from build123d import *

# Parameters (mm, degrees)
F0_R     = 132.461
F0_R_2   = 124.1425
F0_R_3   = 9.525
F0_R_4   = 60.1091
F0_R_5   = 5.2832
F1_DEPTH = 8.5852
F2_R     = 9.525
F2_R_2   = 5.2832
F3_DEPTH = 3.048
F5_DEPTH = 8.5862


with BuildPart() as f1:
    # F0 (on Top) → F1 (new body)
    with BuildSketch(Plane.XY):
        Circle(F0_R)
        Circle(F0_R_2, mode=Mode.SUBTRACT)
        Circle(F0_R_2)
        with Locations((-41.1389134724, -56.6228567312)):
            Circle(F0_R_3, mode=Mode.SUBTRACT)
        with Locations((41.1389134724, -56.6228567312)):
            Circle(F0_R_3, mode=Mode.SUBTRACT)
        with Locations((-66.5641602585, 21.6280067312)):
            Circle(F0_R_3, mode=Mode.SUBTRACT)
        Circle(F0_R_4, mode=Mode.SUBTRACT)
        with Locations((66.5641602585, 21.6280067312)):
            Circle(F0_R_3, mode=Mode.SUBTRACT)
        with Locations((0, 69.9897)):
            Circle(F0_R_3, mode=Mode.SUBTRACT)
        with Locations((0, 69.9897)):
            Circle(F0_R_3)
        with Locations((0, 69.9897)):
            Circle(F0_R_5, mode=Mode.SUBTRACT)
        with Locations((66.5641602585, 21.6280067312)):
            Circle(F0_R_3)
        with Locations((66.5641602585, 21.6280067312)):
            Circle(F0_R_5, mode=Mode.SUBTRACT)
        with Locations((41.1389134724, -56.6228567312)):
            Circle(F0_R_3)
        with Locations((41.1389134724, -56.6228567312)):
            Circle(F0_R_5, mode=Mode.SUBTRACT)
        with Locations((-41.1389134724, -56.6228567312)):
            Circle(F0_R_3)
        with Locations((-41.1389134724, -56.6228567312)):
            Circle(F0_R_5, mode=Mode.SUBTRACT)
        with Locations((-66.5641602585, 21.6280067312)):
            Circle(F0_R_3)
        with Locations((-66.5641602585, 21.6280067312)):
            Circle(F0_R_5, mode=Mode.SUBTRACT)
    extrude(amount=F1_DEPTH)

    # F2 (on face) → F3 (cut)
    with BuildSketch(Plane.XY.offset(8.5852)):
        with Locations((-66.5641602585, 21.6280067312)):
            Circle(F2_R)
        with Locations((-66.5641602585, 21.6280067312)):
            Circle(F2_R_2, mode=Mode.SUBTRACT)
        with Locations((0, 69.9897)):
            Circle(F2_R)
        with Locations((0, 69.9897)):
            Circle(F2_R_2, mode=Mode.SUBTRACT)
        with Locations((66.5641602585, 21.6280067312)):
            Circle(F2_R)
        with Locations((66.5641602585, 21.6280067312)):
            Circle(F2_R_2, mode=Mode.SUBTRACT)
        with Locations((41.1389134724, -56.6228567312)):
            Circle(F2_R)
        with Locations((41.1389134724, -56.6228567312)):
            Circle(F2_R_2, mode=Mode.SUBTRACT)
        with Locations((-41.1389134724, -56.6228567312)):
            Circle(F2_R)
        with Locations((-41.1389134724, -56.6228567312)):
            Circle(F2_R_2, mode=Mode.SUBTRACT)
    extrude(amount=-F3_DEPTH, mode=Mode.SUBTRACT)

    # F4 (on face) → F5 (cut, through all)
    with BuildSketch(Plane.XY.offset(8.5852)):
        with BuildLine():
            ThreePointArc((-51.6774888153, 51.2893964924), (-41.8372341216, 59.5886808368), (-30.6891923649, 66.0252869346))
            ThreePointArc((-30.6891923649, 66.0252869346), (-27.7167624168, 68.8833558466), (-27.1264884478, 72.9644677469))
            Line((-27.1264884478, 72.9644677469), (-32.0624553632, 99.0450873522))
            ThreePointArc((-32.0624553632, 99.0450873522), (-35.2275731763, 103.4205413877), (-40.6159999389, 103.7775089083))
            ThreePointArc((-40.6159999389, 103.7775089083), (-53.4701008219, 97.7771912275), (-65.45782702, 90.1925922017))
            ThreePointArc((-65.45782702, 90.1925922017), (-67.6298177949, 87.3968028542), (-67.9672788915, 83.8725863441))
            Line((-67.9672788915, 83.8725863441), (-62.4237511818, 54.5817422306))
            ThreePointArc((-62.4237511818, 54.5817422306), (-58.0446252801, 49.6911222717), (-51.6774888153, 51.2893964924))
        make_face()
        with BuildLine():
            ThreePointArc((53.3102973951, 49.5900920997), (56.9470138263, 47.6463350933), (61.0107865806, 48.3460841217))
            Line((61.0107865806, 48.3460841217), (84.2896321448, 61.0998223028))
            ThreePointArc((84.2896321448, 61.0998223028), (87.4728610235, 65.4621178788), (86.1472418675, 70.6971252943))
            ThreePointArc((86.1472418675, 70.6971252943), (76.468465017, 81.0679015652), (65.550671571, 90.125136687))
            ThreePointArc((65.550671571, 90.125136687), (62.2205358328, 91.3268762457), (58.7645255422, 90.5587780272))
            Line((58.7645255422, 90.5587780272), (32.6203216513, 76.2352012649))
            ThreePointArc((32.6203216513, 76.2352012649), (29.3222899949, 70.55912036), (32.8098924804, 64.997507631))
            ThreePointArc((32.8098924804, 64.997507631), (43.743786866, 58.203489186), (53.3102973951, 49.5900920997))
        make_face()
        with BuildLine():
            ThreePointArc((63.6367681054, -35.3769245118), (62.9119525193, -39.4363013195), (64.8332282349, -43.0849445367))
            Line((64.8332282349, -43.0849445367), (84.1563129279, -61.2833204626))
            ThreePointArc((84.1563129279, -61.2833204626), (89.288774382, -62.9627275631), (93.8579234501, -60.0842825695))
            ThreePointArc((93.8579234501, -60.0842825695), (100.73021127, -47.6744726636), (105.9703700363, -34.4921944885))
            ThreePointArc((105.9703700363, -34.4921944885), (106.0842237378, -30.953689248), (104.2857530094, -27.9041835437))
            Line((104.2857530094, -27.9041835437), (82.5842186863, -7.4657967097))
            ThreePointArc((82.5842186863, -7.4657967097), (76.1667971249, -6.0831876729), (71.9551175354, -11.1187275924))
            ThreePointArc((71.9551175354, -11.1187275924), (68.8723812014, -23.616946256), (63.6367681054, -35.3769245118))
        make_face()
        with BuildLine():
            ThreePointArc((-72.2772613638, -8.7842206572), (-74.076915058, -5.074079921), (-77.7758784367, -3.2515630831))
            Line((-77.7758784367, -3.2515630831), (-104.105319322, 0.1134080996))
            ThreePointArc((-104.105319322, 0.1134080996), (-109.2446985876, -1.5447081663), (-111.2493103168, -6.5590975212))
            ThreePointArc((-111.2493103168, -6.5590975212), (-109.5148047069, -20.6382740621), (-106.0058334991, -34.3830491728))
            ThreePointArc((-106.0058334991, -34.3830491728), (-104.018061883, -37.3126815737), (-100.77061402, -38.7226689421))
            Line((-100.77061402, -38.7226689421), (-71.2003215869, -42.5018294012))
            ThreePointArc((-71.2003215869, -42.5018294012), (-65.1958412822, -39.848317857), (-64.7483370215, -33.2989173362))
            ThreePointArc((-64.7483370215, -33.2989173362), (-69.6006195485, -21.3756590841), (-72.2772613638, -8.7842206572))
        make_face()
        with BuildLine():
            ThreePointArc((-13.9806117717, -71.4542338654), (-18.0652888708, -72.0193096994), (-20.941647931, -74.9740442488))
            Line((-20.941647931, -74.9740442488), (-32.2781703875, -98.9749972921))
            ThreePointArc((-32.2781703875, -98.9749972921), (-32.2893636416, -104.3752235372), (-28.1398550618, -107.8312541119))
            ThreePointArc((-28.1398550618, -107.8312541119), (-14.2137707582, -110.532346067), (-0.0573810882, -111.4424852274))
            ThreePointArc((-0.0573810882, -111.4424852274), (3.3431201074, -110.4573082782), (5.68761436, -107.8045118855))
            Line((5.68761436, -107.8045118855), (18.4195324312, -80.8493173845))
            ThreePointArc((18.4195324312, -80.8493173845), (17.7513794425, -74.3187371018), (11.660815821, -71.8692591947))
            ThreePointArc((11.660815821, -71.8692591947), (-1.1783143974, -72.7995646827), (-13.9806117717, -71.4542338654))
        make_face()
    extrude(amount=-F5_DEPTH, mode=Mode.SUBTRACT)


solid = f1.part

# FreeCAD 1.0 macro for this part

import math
import FreeCAD as App
import Part
import Sketcher
from FreeCAD import Vector
Q = App.Units.Quantity

doc = App.newDocument("Part")
body = doc.addObject("PartDesign::Body", "Body")

sketch1 = body.newObject("Sketcher::SketchObject", "Sketch")
sketch1.AttachmentSupport = (doc.getObject("XY_Plane"), [""])
sketch1.MapMode = "FlatFace"
sketch1.addGeometry(Part.Circle(Vector(0, 0, 0), Vector(0, 0, 1), 132), False)
sketch1.addGeometry(Part.Circle(Vector(-41, -57, 0), Vector(0, 0, 1), 5), False)
sketch1.addGeometry(Part.Circle(Vector(41, -57, 0), Vector(0, 0, 1), 5), False)
sketch1.addGeometry(Part.Circle(Vector(0, 0, 0), Vector(0, 0, 1), 60), False)
sketch1.addGeometry(Part.Circle(Vector(-67, 22, 0), Vector(0, 0, 1), 5), False)
sketch1.addGeometry(Part.Circle(Vector(67, 22, 0), Vector(0, 0, 1), 5), False)
sketch1.addGeometry(Part.Circle(Vector(0, 70, 0), Vector(0, 0, 1), 5), False)
sketch1.addConstraint(Sketcher.Constraint("Coincident", 0, 3, -1, 1))
sketch1.addConstraint(Sketcher.Constraint("Coincident", 3, 3, -1, 1))
sketch1.addConstraint(Sketcher.Constraint("Equal", 1, 2))
sketch1.addConstraint(Sketcher.Constraint("Equal", 2, 4))
sketch1.addConstraint(Sketcher.Constraint("Equal", 4, 5))
sketch1.addConstraint(Sketcher.Constraint("Equal", 5, 6))
sketch1.addConstraint(Sketcher.Constraint("Symmetric", 1, 3, 2, 3, -2))
sketch1.addConstraint(Sketcher.Constraint("Symmetric", 4, 3, 5, 3, -2))
sketch1.addConstraint(Sketcher.Constraint("PointOnObject", 6, 3, -2))
sketch1.addConstraint(Sketcher.Constraint("Diameter", 0, Q("10.43 in")))
sketch1.addConstraint(Sketcher.Constraint("Diameter", 1, Q("0.416 in")))
sketch1.addConstraint(Sketcher.Constraint("Diameter", 3, Q("4.733 in")))
sketch1.addConstraint(Sketcher.Constraint("DistanceY", -1, 1, 6, 3, Q("2.7555 in")))
sketch1.addConstraint(Sketcher.Constraint("DistanceX", 4, 3, -1, 1, Q("66.56416 mm")))
sketch1.addConstraint(Sketcher.Constraint("DistanceX", 1, 3, -1, 1, Q("41.138913 mm")))
sketch1.addConstraint(Sketcher.Constraint("DistanceY", 1, 3, -1, 1, Q("56.622857 mm")))
sketch1.addConstraint(Sketcher.Constraint("DistanceY", -1, 1, 4, 3, Q("21.628007 mm")))
pad1 = body.newObject("PartDesign::Pad", "Pad")
pad1.Profile = sketch1
pad1.Length = Q("0.338 in")

sketch2 = body.newObject("Sketcher::SketchObject", "Sketch001")
sketch2.AttachmentSupport = (doc.getObject("XY_Plane"), [""])
sketch2.MapMode = "FlatFace"
sketch2.AttachmentOffset = App.Placement(Vector(0, 0, 0.338 * 25.4), App.Rotation())
sketch2.addGeometry(Part.Circle(Vector(-67, 22, 0), Vector(0, 0, 1), 10), False)
sketch2.addGeometry(Part.Circle(Vector(-67, 22, 0), Vector(0, 0, 1), 5), False)
sketch2.addGeometry(Part.Circle(Vector(0, 70, 0), Vector(0, 0, 1), 10), False)
sketch2.addGeometry(Part.Circle(Vector(0, 70, 0), Vector(0, 0, 1), 5), False)
sketch2.addGeometry(Part.Circle(Vector(67, 22, 0), Vector(0, 0, 1), 10), False)
sketch2.addGeometry(Part.Circle(Vector(67, 22, 0), Vector(0, 0, 1), 5), False)
sketch2.addGeometry(Part.Circle(Vector(41, -57, 0), Vector(0, 0, 1), 10), False)
sketch2.addGeometry(Part.Circle(Vector(41, -57, 0), Vector(0, 0, 1), 5), False)
sketch2.addGeometry(Part.Circle(Vector(-41, -57, 0), Vector(0, 0, 1), 10), False)
sketch2.addGeometry(Part.Circle(Vector(-41, -57, 0), Vector(0, 0, 1), 5), False)
sketch2.addConstraint(Sketcher.Constraint("Coincident", 1, 3, 0, 3))
sketch2.addConstraint(Sketcher.Constraint("Coincident", 3, 3, 2, 3))
sketch2.addConstraint(Sketcher.Constraint("Coincident", 5, 3, 4, 3))
sketch2.addConstraint(Sketcher.Constraint("Coincident", 7, 3, 6, 3))
sketch2.addConstraint(Sketcher.Constraint("Coincident", 9, 3, 8, 3))
sketch2.addConstraint(Sketcher.Constraint("Equal", 0, 2))
sketch2.addConstraint(Sketcher.Constraint("Equal", 1, 3))
sketch2.addConstraint(Sketcher.Constraint("Equal", 2, 4))
sketch2.addConstraint(Sketcher.Constraint("Equal", 3, 5))
sketch2.addConstraint(Sketcher.Constraint("Equal", 4, 6))
sketch2.addConstraint(Sketcher.Constraint("Equal", 5, 7))
sketch2.addConstraint(Sketcher.Constraint("Equal", 6, 8))
sketch2.addConstraint(Sketcher.Constraint("Equal", 7, 9))
sketch2.addConstraint(Sketcher.Constraint("Symmetric", 0, 3, 4, 3, -2))
sketch2.addConstraint(Sketcher.Constraint("Symmetric", 6, 3, 8, 3, -2))
sketch2.addConstraint(Sketcher.Constraint("PointOnObject", 2, 3, -2))
sketch2.addConstraint(Sketcher.Constraint("Diameter", 0, Q("0.75 in")))
sketch2.addConstraint(Sketcher.Constraint("Diameter", 1, Q("0.416 in")))
sketch2.addConstraint(Sketcher.Constraint("DistanceY", -1, 1, 2, 3, Q("2.7555 in")))
sketch2.addConstraint(Sketcher.Constraint("DistanceX", 0, 3, -1, 1, Q("66.56416 mm")))
sketch2.addConstraint(Sketcher.Constraint("DistanceY", -1, 1, 0, 3, Q("21.628007 mm")))
sketch2.addConstraint(Sketcher.Constraint("DistanceX", -1, 1, 6, 3, Q("41.138913 mm")))
sketch2.addConstraint(Sketcher.Constraint("DistanceY", 6, 3, -1, 1, Q("56.622857 mm")))
pocket1 = body.newObject("PartDesign::Pocket", "Pocket")
pocket1.Profile = sketch2
pocket1.Length = Q("0.12 in")

sketch3 = body.newObject("Sketcher::SketchObject", "Sketch002")
sketch3.AttachmentSupport = (doc.getObject("XY_Plane"), [""])
sketch3.MapMode = "FlatFace"
sketch3.AttachmentOffset = App.Placement(Vector(0, 0, 0.338 * 25.4), App.Rotation())
sketch3.addGeometry(Part.ArcOfCircle(Part.Circle(Vector(0, 0, 0), Vector(0, 0, 1), 73), math.radians(115), math.radians(135)), False)
sketch3.addGeometry(Part.ArcOfCircle(Part.Circle(Vector(-33, 72, 0), Vector(0, 0, 1), 6), math.radians(-65), math.radians(11)), False)
sketch3.addGeometry(Part.LineSegment(Vector(-27, 73, 0), Vector(-32, 99, 0)), False)
sketch3.addGeometry(Part.ArcOfCircle(Part.Circle(Vector(-38, 98, 0), Vector(0, 0, 1), 6), math.radians(11), math.radians(111)), False)
sketch3.addGeometry(Part.ArcOfCircle(Part.Circle(Vector(0, 0, 0), Vector(0, 0, 1), 111), math.radians(111.37), math.radians(125.97)), False)
sketch3.addGeometry(Part.ArcOfCircle(Part.Circle(Vector(-62, 85, 0), Vector(0, 0, 1), 6), math.radians(126), math.radians(191)), False)
sketch3.addGeometry(Part.LineSegment(Vector(-68, 84, 0), Vector(-62, 55, 0)), False)
sketch3.addGeometry(Part.ArcOfCircle(Part.Circle(Vector(-56, 56, 0), Vector(0, 0, 1), 6), math.radians(-169), math.radians(-45)), False)
sketch3.addGeometry(Part.ArcOfCircle(Part.Circle(Vector(58, 54, 0), Vector(0, 0, 1), 6), math.radians(-137), math.radians(-61)), False)
sketch3.addGeometry(Part.LineSegment(Vector(61, 48, 0), Vector(84, 61, 0)), False)
sketch3.addGeometry(Part.ArcOfCircle(Part.Circle(Vector(81, 67, 0), Vector(0, 0, 1), 6), math.radians(-61), math.radians(39)), False)
sketch3.addGeometry(Part.ArcOfCircle(Part.Circle(Vector(0, 0, 0), Vector(0, 0, 1), 111), math.radians(39.37), math.radians(53.97)), False)
sketch3.addGeometry(Part.ArcOfCircle(Part.Circle(Vector(62, 85, 0), Vector(0, 0, 1), 6), math.radians(54), math.radians(119)), False)
sketch3.addGeometry(Part.LineSegment(Vector(59, 91, 0), Vector(33, 76, 0)), False)
sketch3.addGeometry(Part.ArcOfCircle(Part.Circle(Vector(36, 71, 0), Vector(0, 0, 1), 6), math.radians(119), math.radians(243)), False)
sketch3.addGeometry(Part.ArcOfCircle(Part.Circle(Vector(0, 0, 0), Vector(0, 0, 1), 73), math.radians(43), math.radians(63)), False)
sketch3.addGeometry(Part.ArcOfCircle(Part.Circle(Vector(69, -38, 0), Vector(0, 0, 1), 6), math.radians(151), math.radians(227)), False)
sketch3.addGeometry(Part.LineSegment(Vector(65, -43, 0), Vector(84, -61, 0)), False)
sketch3.addGeometry(Part.ArcOfCircle(Part.Circle(Vector(89, -57, 0), Vector(0, 0, 1), 6), math.radians(-133), math.radians(-33)), False)
sketch3.addGeometry(Part.ArcOfCircle(Part.Circle(Vector(0, 0, 0), Vector(0, 0, 1), 111), math.radians(-32.63), math.radians(-18.03)), False)
sketch3.addGeometry(Part.ArcOfCircle(Part.Circle(Vector(100, -33, 0), Vector(0, 0, 1), 6), math.radians(-18), math.radians(47)), False)
sketch3.addGeometry(Part.LineSegment(Vector(104, -28, 0), Vector(83, -7, 0)), False)
sketch3.addGeometry(Part.ArcOfCircle(Part.Circle(Vector(78, -12, 0), Vector(0, 0, 1), 6), math.radians(47), math.radians(171)), False)
sketch3.addGeometry(Part.ArcOfCircle(Part.Circle(Vector(0, 0, 0), Vector(0, 0, 1), 73), math.radians(-29), math.radians(-9)), False)
sketch3.addGeometry(Part.ArcOfCircle(Part.Circle(Vector(-79, -10, 0), Vector(0, 0, 1), 6), math.radians(7), math.radians(83)), False)
sketch3.addGeometry(Part.LineSegment(Vector(-78, -3, 0), Vector(-104, 0, 0)), False)
sketch3.addGeometry(Part.ArcOfCircle(Part.Circle(Vector(-105, -6, 0), Vector(0, 0, 1), 6), math.radians(83), math.radians(183)), False)
sketch3.addGeometry(Part.ArcOfCircle(Part.Circle(Vector(0, 0, 0), Vector(0, 0, 1), 111), math.radians(-176.63), math.radians(-162.03)), False)
sketch3.addGeometry(Part.ArcOfCircle(Part.Circle(Vector(-100, -32, 0), Vector(0, 0, 1), 6), math.radians(-162), math.radians(-97)), False)
sketch3.addGeometry(Part.LineSegment(Vector(-101, -39, 0), Vector(-71, -43, 0)), False)
sketch3.addGeometry(Part.ArcOfCircle(Part.Circle(Vector(-70, -36, 0), Vector(0, 0, 1), 6), math.radians(-97), math.radians(27)), False)
sketch3.addGeometry(Part.ArcOfCircle(Part.Circle(Vector(0, 0, 0), Vector(0, 0, 1), 73), math.radians(-173), math.radians(-153)), False)
sketch3.addGeometry(Part.ArcOfCircle(Part.Circle(Vector(-15, -78, 0), Vector(0, 0, 1), 6), math.radians(79), math.radians(155)), False)
sketch3.addGeometry(Part.LineSegment(Vector(-21, -75, 0), Vector(-32, -99, 0)), False)
sketch3.addGeometry(Part.ArcOfCircle(Part.Circle(Vector(-27, -102, 0), Vector(0, 0, 1), 6), math.radians(155), math.radians(255)), False)
sketch3.addGeometry(Part.ArcOfCircle(Part.Circle(Vector(0, 0, 0), Vector(0, 0, 1), 111), math.radians(-104.63), math.radians(-90.03)), False)
sketch3.addGeometry(Part.ArcOfCircle(Part.Circle(Vector(0, -105, 0), Vector(0, 0, 1), 6), math.radians(-90), math.radians(-25)), False)
sketch3.addGeometry(Part.LineSegment(Vector(6, -108, 0), Vector(18, -81, 0)), False)
sketch3.addGeometry(Part.ArcOfCircle(Part.Circle(Vector(13, -78, 0), Vector(0, 0, 1), 6), math.radians(-25), math.radians(99)), False)
sketch3.addGeometry(Part.ArcOfCircle(Part.Circle(Vector(0, 0, 0), Vector(0, 0, 1), 73), math.radians(-101), math.radians(-81)), False)
sketch3.addConstraint(Sketcher.Constraint("Tangent", 0, 1, 1, 1))
sketch3.addConstraint(Sketcher.Constraint("Tangent", 1, 2, 2, 1))
sketch3.addConstraint(Sketcher.Constraint("Tangent", 2, 2, 3, 1))
sketch3.addConstraint(Sketcher.Constraint("Tangent", 3, 2, 4, 1))
sketch3.addConstraint(Sketcher.Constraint("Tangent", 4, 2, 5, 1))
sketch3.addConstraint(Sketcher.Constraint("Tangent", 5, 2, 6, 1))
sketch3.addConstraint(Sketcher.Constraint("Tangent", 6, 2, 7, 1))
sketch3.addConstraint(Sketcher.Constraint("Tangent", 7, 2, 0, 2))
sketch3.addConstraint(Sketcher.Constraint("Tangent", 8, 2, 9, 1))
sketch3.addConstraint(Sketcher.Constraint("Tangent", 9, 2, 10, 1))
sketch3.addConstraint(Sketcher.Constraint("Tangent", 10, 2, 11, 1))
sketch3.addConstraint(Sketcher.Constraint("Tangent", 11, 2, 12, 1))
sketch3.addConstraint(Sketcher.Constraint("Tangent", 12, 2, 13, 1))
sketch3.addConstraint(Sketcher.Constraint("Tangent", 13, 2, 14, 1))
sketch3.addConstraint(Sketcher.Constraint("Tangent", 14, 2, 15, 2))
sketch3.addConstraint(Sketcher.Constraint("Tangent", 15, 1, 8, 1))
sketch3.addConstraint(Sketcher.Constraint("Tangent", 16, 2, 17, 1))
sketch3.addConstraint(Sketcher.Constraint("Tangent", 17, 2, 18, 1))
sketch3.addConstraint(Sketcher.Constraint("Tangent", 18, 2, 19, 1))
sketch3.addConstraint(Sketcher.Constraint("Tangent", 19, 2, 20, 1))
sketch3.addConstraint(Sketcher.Constraint("Tangent", 20, 2, 21, 1))
sketch3.addConstraint(Sketcher.Constraint("Tangent", 21, 2, 22, 1))
sketch3.addConstraint(Sketcher.Constraint("Tangent", 22, 2, 23, 2))
sketch3.addConstraint(Sketcher.Constraint("Tangent", 23, 1, 16, 1))
sketch3.addConstraint(Sketcher.Constraint("Tangent", 24, 2, 25, 1))
sketch3.addConstraint(Sketcher.Constraint("Tangent", 25, 2, 26, 1))
sketch3.addConstraint(Sketcher.Constraint("Tangent", 26, 2, 27, 1))
sketch3.addConstraint(Sketcher.Constraint("Tangent", 27, 2, 28, 1))
sketch3.addConstraint(Sketcher.Constraint("Tangent", 28, 2, 29, 1))
sketch3.addConstraint(Sketcher.Constraint("Tangent", 29, 2, 30, 1))
sketch3.addConstraint(Sketcher.Constraint("Tangent", 30, 2, 31, 2))
sketch3.addConstraint(Sketcher.Constraint("Tangent", 31, 1, 24, 1))
sketch3.addConstraint(Sketcher.Constraint("Tangent", 32, 2, 33, 1))
sketch3.addConstraint(Sketcher.Constraint("Tangent", 33, 2, 34, 1))
sketch3.addConstraint(Sketcher.Constraint("Tangent", 34, 2, 35, 1))
sketch3.addConstraint(Sketcher.Constraint("Tangent", 35, 2, 36, 1))
sketch3.addConstraint(Sketcher.Constraint("Tangent", 36, 2, 37, 1))
sketch3.addConstraint(Sketcher.Constraint("Tangent", 37, 2, 38, 1))
sketch3.addConstraint(Sketcher.Constraint("Tangent", 38, 2, 39, 2))
sketch3.addConstraint(Sketcher.Constraint("Tangent", 39, 1, 32, 1))
sketch3.addConstraint(Sketcher.Constraint("Coincident", 0, 3, -1, 1))
sketch3.addConstraint(Sketcher.Constraint("Coincident", 4, 3, -1, 1))
sketch3.addConstraint(Sketcher.Constraint("Coincident", 11, 3, -1, 1))
sketch3.addConstraint(Sketcher.Constraint("Coincident", 15, 3, -1, 1))
sketch3.addConstraint(Sketcher.Constraint("Coincident", 19, 3, -1, 1))
sketch3.addConstraint(Sketcher.Constraint("Coincident", 23, 3, -1, 1))
sketch3.addConstraint(Sketcher.Constraint("Coincident", 27, 3, -1, 1))
sketch3.addConstraint(Sketcher.Constraint("Coincident", 31, 3, -1, 1))
sketch3.addConstraint(Sketcher.Constraint("Coincident", 35, 3, -1, 1))
sketch3.addConstraint(Sketcher.Constraint("Coincident", 39, 3, -1, 1))
sketch3.addConstraint(Sketcher.Constraint("Equal", 1, 3))
sketch3.addConstraint(Sketcher.Constraint("Equal", 3, 5))
sketch3.addConstraint(Sketcher.Constraint("Equal", 5, 7))
sketch3.addConstraint(Sketcher.Constraint("Equal", 7, 8))
sketch3.addConstraint(Sketcher.Constraint("Equal", 8, 10))
sketch3.addConstraint(Sketcher.Constraint("Equal", 4, 11))
sketch3.addConstraint(Sketcher.Constraint("Equal", 10, 12))
sketch3.addConstraint(Sketcher.Constraint("Equal", 12, 14))
sketch3.addConstraint(Sketcher.Constraint("Equal", 0, 15))
sketch3.addConstraint(Sketcher.Constraint("Equal", 14, 16))
sketch3.addConstraint(Sketcher.Constraint("Equal", 16, 18))
sketch3.addConstraint(Sketcher.Constraint("Equal", 11, 19))
sketch3.addConstraint(Sketcher.Constraint("Equal", 18, 20))
sketch3.addConstraint(Sketcher.Constraint("Equal", 20, 22))
sketch3.addConstraint(Sketcher.Constraint("Equal", 15, 23))
sketch3.addConstraint(Sketcher.Constraint("Equal", 22, 24))
sketch3.addConstraint(Sketcher.Constraint("Equal", 24, 26))
sketch3.addConstraint(Sketcher.Constraint("Equal", 19, 27))
sketch3.addConstraint(Sketcher.Constraint("Equal", 26, 28))
sketch3.addConstraint(Sketcher.Constraint("Equal", 28, 30))
sketch3.addConstraint(Sketcher.Constraint("Equal", 23, 31))
sketch3.addConstraint(Sketcher.Constraint("Equal", 30, 32))
sketch3.addConstraint(Sketcher.Constraint("Equal", 32, 34))
sketch3.addConstraint(Sketcher.Constraint("Equal", 27, 35))
sketch3.addConstraint(Sketcher.Constraint("Equal", 34, 36))
sketch3.addConstraint(Sketcher.Constraint("Equal", 36, 38))
sketch3.addConstraint(Sketcher.Constraint("Equal", 31, 39))
sketch3.addConstraint(Sketcher.Constraint("Parallel", 2, 6))
sketch3.addConstraint(Sketcher.Constraint("Parallel", 9, 13))
sketch3.addConstraint(Sketcher.Constraint("Parallel", 17, 21))
sketch3.addConstraint(Sketcher.Constraint("Parallel", 25, 29))
sketch3.addConstraint(Sketcher.Constraint("Parallel", 33, 37))
sketch3.addConstraint(Sketcher.Constraint("Equal", 2, 9))
sketch3.addConstraint(Sketcher.Constraint("Equal", 6, 13))
sketch3.addConstraint(Sketcher.Constraint("Equal", 9, 17))
sketch3.addConstraint(Sketcher.Constraint("Equal", 13, 21))
sketch3.addConstraint(Sketcher.Constraint("Equal", 17, 25))
sketch3.addConstraint(Sketcher.Constraint("Equal", 21, 29))
sketch3.addConstraint(Sketcher.Constraint("Equal", 25, 33))
sketch3.addConstraint(Sketcher.Constraint("Equal", 29, 37))
sketch3.addConstraint(Sketcher.Constraint("Radius", 1, Q("0.25 in")))
sketch3.addConstraint(Sketcher.Constraint("Radius", 0, Q("2.8665 in")))
sketch3.addConstraint(Sketcher.Constraint("Radius", 4, Q("4.3875 in")))
sketch3.addConstraint(Sketcher.Constraint("DistanceY", -1, 1, 10, 3, Q("66.668799 mm")))
sketch3.addConstraint(Sketcher.Constraint("DistanceY", -1, 1, 12, 3, Q("84.989801 mm")))
sketch3.addConstraint(Sketcher.Constraint("DistanceY", 16, 3, -1, 1, Q("38.462301 mm")))
sketch3.addConstraint(Sketcher.Constraint("DistanceY", 28, 3, -1, 1, Q("32.423901 mm")))
sketch3.addConstraint(Sketcher.Constraint("DistanceX", 3, 2, -1, 1, Q("40.616 mm")))
sketch3.addConstraint(Sketcher.Constraint("DistanceY", -1, 1, 13, 2, Q("76.235201 mm")))
sketch3.addConstraint(Sketcher.Constraint("DistanceY", 32, 3, -1, 1, Q("77.68607 mm")))
pocket2 = body.newObject("PartDesign::Pocket", "Pocket001")
pocket2.Profile = sketch3
pocket2.Type = "ThroughAll"

doc.recompute()
